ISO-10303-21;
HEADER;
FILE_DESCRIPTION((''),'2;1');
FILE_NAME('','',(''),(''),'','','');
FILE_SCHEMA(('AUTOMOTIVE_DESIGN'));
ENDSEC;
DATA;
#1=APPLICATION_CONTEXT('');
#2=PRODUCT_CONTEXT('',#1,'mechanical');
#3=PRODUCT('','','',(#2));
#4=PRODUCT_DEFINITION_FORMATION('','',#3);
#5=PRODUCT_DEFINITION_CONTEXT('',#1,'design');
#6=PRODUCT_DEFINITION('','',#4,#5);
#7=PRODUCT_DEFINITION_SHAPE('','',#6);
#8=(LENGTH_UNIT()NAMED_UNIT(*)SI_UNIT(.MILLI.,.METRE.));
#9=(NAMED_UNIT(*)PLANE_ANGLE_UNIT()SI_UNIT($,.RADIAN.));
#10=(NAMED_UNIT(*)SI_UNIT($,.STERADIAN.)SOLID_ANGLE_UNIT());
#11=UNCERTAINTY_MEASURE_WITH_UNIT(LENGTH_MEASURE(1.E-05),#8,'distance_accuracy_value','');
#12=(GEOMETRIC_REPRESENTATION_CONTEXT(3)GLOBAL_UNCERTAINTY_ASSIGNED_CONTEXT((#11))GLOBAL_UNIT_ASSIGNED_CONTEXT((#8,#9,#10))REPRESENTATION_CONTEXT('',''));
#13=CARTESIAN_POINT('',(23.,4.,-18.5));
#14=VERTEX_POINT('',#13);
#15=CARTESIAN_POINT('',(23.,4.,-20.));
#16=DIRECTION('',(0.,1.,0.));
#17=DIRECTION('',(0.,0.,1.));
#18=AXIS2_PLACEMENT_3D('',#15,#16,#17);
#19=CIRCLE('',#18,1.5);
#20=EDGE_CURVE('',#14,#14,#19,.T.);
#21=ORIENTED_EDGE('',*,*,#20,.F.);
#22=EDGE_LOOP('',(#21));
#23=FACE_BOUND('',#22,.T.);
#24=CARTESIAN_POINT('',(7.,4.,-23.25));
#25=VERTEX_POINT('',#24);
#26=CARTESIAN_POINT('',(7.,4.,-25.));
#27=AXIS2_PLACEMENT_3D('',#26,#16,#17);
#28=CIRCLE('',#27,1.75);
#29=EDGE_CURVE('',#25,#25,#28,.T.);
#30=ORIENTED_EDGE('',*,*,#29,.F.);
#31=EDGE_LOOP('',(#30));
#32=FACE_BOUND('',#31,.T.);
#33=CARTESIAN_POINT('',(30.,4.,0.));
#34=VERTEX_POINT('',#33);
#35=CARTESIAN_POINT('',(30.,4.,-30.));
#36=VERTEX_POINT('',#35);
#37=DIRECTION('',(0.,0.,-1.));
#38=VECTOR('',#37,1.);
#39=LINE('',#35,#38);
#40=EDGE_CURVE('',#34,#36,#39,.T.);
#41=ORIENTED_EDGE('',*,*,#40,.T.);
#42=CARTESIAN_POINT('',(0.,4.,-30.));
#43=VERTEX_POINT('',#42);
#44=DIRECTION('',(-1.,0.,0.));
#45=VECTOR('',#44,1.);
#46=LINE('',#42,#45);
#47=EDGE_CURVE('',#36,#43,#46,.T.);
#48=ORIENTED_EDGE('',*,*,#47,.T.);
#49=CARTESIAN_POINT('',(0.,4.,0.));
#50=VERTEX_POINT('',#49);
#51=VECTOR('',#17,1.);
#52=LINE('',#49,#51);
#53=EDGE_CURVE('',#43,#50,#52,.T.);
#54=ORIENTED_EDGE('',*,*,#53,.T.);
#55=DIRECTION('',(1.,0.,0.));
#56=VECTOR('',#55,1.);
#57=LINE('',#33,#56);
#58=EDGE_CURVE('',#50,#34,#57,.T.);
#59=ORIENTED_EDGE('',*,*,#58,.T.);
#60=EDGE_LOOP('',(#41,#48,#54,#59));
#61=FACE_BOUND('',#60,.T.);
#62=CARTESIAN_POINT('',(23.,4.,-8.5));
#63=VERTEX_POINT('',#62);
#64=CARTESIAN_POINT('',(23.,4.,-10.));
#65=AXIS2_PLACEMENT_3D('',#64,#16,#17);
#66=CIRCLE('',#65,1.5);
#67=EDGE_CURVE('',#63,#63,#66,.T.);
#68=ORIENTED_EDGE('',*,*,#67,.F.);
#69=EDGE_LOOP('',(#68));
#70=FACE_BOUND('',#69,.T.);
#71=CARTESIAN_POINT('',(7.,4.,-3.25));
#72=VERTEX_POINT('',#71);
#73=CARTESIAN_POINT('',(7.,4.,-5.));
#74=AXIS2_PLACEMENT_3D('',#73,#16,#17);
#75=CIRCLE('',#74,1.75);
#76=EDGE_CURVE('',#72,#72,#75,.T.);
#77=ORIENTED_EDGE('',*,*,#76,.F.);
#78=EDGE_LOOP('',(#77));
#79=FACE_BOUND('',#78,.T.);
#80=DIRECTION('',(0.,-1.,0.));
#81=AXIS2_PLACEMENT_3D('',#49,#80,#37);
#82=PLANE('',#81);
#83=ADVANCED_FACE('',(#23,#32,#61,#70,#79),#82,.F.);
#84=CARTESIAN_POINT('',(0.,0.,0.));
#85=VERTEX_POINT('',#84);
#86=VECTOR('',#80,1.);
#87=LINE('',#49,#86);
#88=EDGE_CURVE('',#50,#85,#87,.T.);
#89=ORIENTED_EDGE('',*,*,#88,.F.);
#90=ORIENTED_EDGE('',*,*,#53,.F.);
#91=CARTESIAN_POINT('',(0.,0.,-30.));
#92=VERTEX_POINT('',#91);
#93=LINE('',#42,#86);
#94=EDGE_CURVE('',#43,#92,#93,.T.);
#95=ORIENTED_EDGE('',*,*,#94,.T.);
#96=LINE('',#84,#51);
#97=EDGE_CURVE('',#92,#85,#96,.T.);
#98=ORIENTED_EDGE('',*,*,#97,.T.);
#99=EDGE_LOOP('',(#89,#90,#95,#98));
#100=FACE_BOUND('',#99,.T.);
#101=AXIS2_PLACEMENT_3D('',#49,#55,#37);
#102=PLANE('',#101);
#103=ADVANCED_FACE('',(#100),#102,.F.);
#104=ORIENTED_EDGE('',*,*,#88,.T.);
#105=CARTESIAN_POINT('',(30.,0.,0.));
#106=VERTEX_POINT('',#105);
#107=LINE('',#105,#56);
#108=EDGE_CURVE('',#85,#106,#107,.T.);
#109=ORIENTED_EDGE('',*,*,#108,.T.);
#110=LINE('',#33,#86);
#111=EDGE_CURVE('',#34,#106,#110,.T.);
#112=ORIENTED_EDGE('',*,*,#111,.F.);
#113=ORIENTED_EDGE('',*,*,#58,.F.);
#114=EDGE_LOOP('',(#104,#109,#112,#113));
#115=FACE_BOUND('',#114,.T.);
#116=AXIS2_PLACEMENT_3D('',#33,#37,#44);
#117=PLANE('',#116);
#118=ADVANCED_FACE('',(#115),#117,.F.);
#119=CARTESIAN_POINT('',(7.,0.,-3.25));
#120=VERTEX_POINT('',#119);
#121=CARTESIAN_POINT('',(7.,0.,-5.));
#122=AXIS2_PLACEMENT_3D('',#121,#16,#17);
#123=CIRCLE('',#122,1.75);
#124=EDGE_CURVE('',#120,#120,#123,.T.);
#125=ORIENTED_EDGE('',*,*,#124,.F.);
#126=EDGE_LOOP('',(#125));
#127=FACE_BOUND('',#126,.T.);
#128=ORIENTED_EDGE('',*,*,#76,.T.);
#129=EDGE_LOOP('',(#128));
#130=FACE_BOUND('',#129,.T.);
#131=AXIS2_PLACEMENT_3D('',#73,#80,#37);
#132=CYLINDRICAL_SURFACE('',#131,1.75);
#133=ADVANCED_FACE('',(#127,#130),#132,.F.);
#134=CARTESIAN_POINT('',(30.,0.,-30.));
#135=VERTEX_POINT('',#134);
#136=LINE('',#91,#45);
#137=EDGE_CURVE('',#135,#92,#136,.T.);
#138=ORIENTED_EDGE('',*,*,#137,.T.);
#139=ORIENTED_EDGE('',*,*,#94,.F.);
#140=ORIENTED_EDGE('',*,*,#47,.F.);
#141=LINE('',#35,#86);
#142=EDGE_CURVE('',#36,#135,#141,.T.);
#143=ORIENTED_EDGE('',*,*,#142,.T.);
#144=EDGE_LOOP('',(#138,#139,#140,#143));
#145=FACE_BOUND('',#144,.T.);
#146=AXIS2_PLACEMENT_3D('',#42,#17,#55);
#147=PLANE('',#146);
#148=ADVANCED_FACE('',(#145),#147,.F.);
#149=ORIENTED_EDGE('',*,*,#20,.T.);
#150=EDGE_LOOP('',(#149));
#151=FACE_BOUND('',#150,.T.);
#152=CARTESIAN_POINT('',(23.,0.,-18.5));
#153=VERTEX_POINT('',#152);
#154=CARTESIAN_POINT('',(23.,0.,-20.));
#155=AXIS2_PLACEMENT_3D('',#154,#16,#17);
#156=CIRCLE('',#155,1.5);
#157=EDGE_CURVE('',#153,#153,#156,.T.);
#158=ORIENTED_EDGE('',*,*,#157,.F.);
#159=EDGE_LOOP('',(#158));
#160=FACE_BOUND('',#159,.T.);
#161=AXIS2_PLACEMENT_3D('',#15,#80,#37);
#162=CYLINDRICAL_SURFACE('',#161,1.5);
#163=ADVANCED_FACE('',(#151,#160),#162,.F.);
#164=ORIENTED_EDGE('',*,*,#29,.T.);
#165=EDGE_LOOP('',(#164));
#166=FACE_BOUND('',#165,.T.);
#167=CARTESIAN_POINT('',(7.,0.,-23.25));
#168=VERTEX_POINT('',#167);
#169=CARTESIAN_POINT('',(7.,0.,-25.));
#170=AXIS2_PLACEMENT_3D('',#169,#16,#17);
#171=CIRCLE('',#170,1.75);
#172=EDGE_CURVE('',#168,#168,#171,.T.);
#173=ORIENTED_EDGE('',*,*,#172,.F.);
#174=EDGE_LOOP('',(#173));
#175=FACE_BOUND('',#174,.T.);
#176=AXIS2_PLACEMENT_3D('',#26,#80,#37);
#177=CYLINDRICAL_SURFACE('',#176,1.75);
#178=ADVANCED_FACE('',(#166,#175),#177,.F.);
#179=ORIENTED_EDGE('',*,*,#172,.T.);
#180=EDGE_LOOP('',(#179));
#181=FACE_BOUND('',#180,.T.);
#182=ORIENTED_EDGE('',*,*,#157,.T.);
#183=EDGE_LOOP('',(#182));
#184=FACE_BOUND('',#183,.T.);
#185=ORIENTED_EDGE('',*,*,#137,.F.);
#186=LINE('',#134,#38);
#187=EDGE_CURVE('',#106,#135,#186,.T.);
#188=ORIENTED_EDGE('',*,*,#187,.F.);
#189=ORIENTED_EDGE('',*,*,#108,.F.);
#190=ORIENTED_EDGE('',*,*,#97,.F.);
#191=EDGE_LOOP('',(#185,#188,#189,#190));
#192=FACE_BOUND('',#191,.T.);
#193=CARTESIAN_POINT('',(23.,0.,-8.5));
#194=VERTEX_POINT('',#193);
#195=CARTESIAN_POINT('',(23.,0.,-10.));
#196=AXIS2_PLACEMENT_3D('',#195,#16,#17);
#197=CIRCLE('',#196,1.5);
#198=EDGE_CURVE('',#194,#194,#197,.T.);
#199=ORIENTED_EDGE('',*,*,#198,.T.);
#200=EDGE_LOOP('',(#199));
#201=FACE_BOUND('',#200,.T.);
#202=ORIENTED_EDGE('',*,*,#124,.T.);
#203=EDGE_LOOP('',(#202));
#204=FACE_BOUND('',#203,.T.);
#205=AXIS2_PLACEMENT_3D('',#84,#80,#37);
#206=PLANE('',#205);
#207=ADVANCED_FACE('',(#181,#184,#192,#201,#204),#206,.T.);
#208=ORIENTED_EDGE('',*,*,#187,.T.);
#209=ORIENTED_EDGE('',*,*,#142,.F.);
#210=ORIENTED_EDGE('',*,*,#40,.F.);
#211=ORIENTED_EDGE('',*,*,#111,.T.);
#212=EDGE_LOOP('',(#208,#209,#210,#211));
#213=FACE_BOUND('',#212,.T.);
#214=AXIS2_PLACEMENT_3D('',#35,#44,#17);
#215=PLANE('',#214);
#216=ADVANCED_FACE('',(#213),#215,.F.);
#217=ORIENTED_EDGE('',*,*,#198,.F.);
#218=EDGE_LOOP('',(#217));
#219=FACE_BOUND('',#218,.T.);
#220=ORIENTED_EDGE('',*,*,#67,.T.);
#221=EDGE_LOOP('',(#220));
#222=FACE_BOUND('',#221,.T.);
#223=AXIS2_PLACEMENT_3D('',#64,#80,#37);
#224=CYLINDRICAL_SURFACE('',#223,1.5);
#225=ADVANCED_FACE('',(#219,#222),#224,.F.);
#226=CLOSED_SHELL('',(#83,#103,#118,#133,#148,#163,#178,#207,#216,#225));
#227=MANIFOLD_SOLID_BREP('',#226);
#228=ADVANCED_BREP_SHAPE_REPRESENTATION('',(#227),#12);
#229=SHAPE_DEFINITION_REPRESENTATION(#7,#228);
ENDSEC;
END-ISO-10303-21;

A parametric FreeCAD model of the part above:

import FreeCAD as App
import Part
import Sketcher
Q = App.Units.Quantity


def add_polygon(sketch, points):
    """Adds a closed chain of lines whose ends are joined by coincident constraints."""
    first, n = sketch.GeometryCount, len(points)
    for a, b in zip(points, points[1:] + points[:1]):
        sketch.addGeometry(Part.LineSegment(App.Vector(*a, 0), App.Vector(*b, 0)), False)
    for i in range(n):
        sketch.addConstraint(Sketcher.Constraint("Coincident", first + i, 2, first + (i + 1) % n, 1))

doc = App.newDocument("Part")
params = doc.addObject("Spreadsheet::Sheet", "Params")
for row, (alias, value) in enumerate([
    ("sketch1_diameter", "3 mm"),
    ("sketch1_diameter2", "3.5 mm"),
    ("sketch1_width", "30 mm"),
    ("pad1_length", "4 mm"),
], start=1):
    params.set(f"A{row}", alias)
    params.set(f"B{row}", "=" + value)
    params.setAlias(f"B{row}", alias)

body = doc.addObject("PartDesign::Body", "Body")

sketch1 = body.newObject("Sketcher::SketchObject", "Sketch")
sketch1.AttachmentSupport = (doc.getObject("XZ_Plane"), [""])
sketch1.MapMode = "FlatFace"
add_polygon(sketch1, [(0, -30), (0, 0), (30, 0), (30, -30)])
sketch1.addGeometry(Part.Circle(App.Vector(7, -5, 0), App.Vector(0, 0, 1), 1.75), False)
sketch1.addGeometry(Part.Circle(App.Vector(23, -10, 0), App.Vector(0, 0, 1), 1.5), False)
sketch1.addGeometry(Part.Circle(App.Vector(7, -25, 0), App.Vector(0, 0, 1), 1.75), False)
sketch1.addGeometry(Part.Circle(App.Vector(23, -20, 0), App.Vector(0, 0, 1), 1.5), False)
sketch1.addConstraint([
    Sketcher.Constraint("Vertical", 0),
    Sketcher.Constraint("Horizontal", 1),
    Sketcher.Constraint("Vertical", 2),
    Sketcher.Constraint("Horizontal", 3),
    Sketcher.Constraint("Coincident", 0, 2, -1, 1),
    Sketcher.Constraint("Equal", 4, 6),
    Sketcher.Constraint("Equal", 5, 7),
    Sketcher.Constraint("Vertical", 4, 3, 6, 3),
    Sketcher.Constraint("Vertical", 5, 3, 7, 3),
    Sketcher.Constraint("Equal", 3, 0),
    Sketcher.Constraint("Diameter", 5, Q("3 mm")),
    Sketcher.Constraint("Diameter", 4, Q("3.5 mm")),
    Sketcher.Constraint("DistanceX", 1, 1, 1, 2, Q("30 mm")),
    Sketcher.Constraint("DistanceX", -1, 1, 4, 3, Q("7 mm")),
    Sketcher.Constraint("DistanceY", 4, 3, -1, 1, Q("5 mm")),
    Sketcher.Constraint("DistanceX", -1, 1, 5, 3, Q("23 mm")),
    Sketcher.Constraint("DistanceY", 5, 3, -1, 1, Q("10 mm")),
    Sketcher.Constraint("DistanceY", 6, 3, -1, 1, Q("25 mm")),
    Sketcher.Constraint("DistanceY", 7, 3, -1, 1, Q("20 mm")),
])
sketch1.setExpression("Constraints[14]", "Params.sketch1_diameter")
sketch1.setExpression("Constraints[15]", "Params.sketch1_diameter2")
sketch1.setExpression("Constraints[16]", "Params.sketch1_width")
pad1 = body.newObject("PartDesign::Pad", "Pad")
pad1.Profile = sketch1
pad1.setExpression("Length", "Params.pad1_length")
pad1.Reversed = True

doc.recompute()
